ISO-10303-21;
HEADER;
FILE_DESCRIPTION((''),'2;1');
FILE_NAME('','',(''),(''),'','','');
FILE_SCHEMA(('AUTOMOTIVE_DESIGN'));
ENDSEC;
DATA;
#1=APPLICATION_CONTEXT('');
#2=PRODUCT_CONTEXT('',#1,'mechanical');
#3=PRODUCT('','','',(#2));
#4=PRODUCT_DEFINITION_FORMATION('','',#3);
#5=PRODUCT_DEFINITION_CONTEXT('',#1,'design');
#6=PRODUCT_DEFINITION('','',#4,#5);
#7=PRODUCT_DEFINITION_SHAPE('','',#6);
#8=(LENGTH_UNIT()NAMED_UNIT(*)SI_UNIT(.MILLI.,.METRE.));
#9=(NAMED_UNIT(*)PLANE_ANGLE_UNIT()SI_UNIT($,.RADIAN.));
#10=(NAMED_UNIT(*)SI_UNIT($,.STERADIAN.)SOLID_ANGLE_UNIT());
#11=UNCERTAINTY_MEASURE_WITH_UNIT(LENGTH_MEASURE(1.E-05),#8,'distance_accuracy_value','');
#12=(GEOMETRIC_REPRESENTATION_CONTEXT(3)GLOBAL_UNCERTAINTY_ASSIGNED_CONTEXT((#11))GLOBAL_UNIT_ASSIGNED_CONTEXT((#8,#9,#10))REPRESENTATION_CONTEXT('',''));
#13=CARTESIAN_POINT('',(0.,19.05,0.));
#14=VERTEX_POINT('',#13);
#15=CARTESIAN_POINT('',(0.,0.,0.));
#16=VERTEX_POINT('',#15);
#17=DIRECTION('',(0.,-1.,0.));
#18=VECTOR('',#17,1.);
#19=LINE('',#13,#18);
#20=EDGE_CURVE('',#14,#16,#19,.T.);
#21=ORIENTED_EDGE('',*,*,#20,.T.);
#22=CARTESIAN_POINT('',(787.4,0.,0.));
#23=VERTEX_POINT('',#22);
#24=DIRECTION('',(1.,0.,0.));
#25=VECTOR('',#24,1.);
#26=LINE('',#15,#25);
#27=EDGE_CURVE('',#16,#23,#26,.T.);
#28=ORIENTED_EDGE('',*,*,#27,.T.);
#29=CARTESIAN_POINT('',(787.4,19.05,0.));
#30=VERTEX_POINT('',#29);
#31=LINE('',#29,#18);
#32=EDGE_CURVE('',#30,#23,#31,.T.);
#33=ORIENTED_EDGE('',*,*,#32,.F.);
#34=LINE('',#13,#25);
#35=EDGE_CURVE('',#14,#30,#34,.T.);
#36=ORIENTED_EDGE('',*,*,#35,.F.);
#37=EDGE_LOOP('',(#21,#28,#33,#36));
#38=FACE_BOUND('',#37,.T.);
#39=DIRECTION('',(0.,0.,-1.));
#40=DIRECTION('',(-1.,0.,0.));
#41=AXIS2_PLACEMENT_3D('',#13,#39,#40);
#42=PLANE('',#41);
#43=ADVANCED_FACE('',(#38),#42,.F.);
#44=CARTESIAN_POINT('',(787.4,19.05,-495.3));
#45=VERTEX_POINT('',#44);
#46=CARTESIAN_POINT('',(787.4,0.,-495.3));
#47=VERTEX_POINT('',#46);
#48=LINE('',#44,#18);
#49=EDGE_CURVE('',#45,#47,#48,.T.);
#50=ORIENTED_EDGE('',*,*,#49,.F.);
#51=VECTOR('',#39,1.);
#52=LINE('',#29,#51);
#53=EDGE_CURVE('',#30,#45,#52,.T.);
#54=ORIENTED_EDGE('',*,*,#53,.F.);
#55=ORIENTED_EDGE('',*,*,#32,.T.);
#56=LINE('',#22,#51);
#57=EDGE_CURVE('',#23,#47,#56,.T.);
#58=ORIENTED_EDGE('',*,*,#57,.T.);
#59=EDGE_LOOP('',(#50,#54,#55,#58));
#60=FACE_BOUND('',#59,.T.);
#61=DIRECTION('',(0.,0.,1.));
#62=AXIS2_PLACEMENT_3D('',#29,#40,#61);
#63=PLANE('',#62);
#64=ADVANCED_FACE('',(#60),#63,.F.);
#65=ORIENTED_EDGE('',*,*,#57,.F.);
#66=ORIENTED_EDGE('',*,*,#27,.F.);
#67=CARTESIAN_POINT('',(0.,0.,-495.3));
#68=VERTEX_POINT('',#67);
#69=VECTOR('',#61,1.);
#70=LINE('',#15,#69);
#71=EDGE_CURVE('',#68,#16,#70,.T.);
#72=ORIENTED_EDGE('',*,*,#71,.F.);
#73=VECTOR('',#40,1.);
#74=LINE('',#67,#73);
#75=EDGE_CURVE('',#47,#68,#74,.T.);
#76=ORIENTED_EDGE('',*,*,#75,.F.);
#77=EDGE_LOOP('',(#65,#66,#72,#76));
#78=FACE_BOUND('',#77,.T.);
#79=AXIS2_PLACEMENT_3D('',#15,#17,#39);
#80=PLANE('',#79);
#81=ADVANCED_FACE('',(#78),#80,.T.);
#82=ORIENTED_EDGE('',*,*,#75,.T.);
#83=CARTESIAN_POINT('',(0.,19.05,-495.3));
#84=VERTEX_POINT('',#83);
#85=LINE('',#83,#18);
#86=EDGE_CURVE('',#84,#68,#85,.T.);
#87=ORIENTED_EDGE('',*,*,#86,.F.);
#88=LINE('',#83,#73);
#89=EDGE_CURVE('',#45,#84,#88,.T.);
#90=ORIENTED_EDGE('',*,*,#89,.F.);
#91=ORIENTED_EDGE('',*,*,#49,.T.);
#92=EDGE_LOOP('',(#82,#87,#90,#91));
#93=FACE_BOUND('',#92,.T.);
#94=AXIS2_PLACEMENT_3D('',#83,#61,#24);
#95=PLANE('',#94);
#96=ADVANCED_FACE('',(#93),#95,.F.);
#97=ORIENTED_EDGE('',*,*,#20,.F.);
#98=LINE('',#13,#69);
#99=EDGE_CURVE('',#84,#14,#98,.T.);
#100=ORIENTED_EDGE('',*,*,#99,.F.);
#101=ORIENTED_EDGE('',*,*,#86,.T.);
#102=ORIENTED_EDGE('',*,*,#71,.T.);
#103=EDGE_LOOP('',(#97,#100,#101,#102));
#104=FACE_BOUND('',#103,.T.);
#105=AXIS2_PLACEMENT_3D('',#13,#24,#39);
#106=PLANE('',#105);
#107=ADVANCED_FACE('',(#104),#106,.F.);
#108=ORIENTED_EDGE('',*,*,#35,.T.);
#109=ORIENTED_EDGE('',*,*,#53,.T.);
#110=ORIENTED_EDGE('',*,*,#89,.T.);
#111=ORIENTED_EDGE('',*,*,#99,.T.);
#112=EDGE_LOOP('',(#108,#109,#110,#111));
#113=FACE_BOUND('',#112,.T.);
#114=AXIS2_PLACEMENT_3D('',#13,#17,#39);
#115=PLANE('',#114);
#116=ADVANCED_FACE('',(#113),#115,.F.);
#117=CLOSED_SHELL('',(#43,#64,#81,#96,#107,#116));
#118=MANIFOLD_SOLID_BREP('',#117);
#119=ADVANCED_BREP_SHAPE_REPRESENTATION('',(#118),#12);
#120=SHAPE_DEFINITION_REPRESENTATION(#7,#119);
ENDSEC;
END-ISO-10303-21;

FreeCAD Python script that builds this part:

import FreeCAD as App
import Part
import Sketcher
from FreeCAD import Vector
Q = App.Units.Quantity

doc = App.newDocument("Part")
params = doc.addObject("Spreadsheet::Sheet", "Params")
for row, (alias, value) in enumerate([
    ("sketch1_width", "31 in"),
    ("sketch1_height", "19.5 in"),
    ("pad1_length", "0.75 in"),
], start=1):
    params.set(f"A{row}", alias)
    params.set(f"B{row}", "=" + value)
    params.setAlias(f"B{row}", alias)

body = doc.addObject("PartDesign::Body", "Body")

sketch1 = doc.addObject("Sketcher::SketchObject", "Sketch")
body.addObject(sketch1)
sketch1.AttachmentSupport = (doc.XZ_Plane, [""])
sketch1.MapMode = "FlatFace"
sketch1.addGeometry(Part.LineSegment(Vector(0, -495, 0), Vector(0, 0, 0)), False)
sketch1.addGeometry(Part.LineSegment(Vector(0, 0, 0), Vector(787, 0, 0)), False)
sketch1.addGeometry(Part.LineSegment(Vector(787, 0, 0), Vector(787, -495, 0)), False)
sketch1.addGeometry(Part.LineSegment(Vector(787, -495, 0), Vector(0, -495, 0)), False)
sketch1.addConstraint(Sketcher.Constraint("Coincident", 0, 2, 1, 1))
sketch1.addConstraint(Sketcher.Constraint("Coincident", 1, 2, 2, 1))
sketch1.addConstraint(Sketcher.Constraint("Coincident", 2, 2, 3, 1))
sketch1.addConstraint(Sketcher.Constraint("Coincident", 3, 2, 0, 1))
sketch1.addConstraint(Sketcher.Constraint("Vertical", 0))
sketch1.addConstraint(Sketcher.Constraint("Horizontal", 1))
sketch1.addConstraint(Sketcher.Constraint("Vertical", 2))
sketch1.addConstraint(Sketcher.Constraint("Horizontal", 3))
sketch1.addConstraint(Sketcher.Constraint("Coincident", 0, 2, -1, 1))
sketch1.addConstraint(Sketcher.Constraint("DistanceX", 1, 1, 1, 2, Q("31 in")))
sketch1.addConstraint(Sketcher.Constraint("DistanceY", 0, 1, 0, 2, Q("19.5 in")))
sketch1.setExpression("Constraints[9]", "Params.sketch1_width")
sketch1.setExpression("Constraints[10]", "Params.sketch1_height")
pad1 = doc.addObject("PartDesign::Pad", "Pad")
body.addObject(pad1)
pad1.Profile = sketch1
pad1.setExpression("Length", "Params.pad1_length")
pad1.Reversed = True

doc.recompute()
